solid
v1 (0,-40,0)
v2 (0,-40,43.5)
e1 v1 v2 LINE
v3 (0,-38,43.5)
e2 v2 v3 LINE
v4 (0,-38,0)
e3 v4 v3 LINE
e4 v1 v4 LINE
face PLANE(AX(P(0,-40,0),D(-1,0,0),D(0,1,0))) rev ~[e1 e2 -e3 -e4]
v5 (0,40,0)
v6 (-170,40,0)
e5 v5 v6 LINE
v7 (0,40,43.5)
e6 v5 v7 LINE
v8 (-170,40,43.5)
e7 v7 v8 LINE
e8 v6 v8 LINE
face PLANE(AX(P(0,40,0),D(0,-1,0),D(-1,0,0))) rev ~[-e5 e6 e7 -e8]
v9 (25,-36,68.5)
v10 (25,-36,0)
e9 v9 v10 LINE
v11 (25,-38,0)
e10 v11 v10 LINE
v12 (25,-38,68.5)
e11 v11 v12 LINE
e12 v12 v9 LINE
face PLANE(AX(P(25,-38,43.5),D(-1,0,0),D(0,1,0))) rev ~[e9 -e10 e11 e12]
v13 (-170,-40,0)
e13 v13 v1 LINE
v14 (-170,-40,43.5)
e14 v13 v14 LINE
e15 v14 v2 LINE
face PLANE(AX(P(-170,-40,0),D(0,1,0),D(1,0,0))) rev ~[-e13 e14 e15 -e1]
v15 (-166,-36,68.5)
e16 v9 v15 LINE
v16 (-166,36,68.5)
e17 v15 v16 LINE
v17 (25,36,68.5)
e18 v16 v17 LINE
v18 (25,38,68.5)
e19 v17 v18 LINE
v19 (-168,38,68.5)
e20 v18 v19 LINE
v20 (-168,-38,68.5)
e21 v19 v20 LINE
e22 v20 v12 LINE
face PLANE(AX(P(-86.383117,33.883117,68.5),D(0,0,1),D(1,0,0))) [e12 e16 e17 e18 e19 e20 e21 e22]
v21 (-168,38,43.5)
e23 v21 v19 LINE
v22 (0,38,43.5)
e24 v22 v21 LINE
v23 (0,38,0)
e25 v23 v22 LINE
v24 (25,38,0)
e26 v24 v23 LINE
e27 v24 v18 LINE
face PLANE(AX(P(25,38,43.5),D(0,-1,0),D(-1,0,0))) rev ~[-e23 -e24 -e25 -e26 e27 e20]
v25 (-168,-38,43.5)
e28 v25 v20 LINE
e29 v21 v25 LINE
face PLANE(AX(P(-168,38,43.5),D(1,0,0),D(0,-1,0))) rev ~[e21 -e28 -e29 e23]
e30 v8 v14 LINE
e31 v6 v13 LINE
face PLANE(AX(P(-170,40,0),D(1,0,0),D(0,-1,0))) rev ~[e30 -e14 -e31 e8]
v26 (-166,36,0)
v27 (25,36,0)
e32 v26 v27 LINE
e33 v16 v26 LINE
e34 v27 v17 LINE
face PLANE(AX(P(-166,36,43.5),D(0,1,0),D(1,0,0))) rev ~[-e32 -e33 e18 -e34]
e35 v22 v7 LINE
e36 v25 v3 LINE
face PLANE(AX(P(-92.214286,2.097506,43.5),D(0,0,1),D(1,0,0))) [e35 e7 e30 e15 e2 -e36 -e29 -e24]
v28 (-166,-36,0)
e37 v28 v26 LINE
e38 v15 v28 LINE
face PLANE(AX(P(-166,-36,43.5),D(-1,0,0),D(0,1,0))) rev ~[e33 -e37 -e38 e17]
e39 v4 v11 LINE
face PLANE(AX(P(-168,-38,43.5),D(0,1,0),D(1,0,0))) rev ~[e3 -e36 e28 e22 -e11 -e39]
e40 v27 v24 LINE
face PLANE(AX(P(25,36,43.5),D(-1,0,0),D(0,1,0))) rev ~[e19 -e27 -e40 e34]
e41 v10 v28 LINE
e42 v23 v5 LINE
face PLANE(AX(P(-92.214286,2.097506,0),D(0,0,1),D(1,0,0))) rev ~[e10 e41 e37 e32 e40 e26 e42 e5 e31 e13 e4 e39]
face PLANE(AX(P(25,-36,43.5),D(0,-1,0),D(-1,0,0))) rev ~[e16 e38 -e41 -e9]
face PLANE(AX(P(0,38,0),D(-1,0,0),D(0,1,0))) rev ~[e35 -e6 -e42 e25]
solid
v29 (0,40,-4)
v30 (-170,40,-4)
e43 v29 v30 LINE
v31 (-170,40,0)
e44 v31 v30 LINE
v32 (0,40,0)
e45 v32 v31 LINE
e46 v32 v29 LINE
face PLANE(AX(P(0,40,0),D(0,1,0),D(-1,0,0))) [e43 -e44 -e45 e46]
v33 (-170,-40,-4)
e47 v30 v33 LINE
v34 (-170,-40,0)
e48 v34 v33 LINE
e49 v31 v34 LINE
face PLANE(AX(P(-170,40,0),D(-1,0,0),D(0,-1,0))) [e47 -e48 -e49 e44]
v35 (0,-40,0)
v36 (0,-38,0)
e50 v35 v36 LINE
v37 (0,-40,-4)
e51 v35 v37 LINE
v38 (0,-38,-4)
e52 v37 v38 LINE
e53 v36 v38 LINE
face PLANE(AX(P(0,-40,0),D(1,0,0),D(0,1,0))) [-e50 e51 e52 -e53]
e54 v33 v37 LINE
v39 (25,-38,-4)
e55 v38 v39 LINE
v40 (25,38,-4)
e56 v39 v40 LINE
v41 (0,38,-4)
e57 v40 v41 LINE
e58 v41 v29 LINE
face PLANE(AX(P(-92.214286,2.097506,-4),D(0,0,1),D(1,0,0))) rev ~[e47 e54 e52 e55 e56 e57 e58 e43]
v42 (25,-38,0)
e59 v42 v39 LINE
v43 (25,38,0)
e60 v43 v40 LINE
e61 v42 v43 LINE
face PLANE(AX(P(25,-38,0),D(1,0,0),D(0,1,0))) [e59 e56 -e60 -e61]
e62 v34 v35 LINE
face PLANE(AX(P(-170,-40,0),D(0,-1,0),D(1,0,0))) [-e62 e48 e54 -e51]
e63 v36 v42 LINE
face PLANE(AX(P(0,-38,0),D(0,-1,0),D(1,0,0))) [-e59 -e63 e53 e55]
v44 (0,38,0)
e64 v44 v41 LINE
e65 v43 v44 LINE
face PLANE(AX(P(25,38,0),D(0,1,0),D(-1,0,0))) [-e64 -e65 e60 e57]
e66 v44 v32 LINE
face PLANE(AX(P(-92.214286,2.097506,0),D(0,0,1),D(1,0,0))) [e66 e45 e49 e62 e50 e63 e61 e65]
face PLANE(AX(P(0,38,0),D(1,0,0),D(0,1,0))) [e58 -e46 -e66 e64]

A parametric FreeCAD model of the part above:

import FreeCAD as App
import Part
import Sketcher


def add_polygon(sketch, points):
    """Adds a closed chain of lines whose ends are joined by coincident constraints."""
    first, n = sketch.GeometryCount, len(points)
    for a, b in zip(points, points[1:] + points[:1]):
        sketch.addGeometry(Part.LineSegment(App.Vector(*a, 0), App.Vector(*b, 0)), False)
    for i in range(n):
        sketch.addConstraint(Sketcher.Constraint("Coincident", first + i, 2, first + (i + 1) % n, 1))

doc = App.newDocument("Part")
params = doc.addObject("Spreadsheet::Sheet", "Params")
for row, (alias, value) in enumerate([
    ("sketch1_width", "191 mm"),
    ("sketch1_width2", "25 mm"),
    ("sketch1_width3", "170 mm"),
    ("sketch1_height", "2 mm"),
    ("sketch1_height2", "80 mm"),
    ("pad1_length", "43.5 mm"),
    ("sketch2_width", "191 mm"),
    ("sketch2_width2", "193 mm"),
    ("sketch2_height", "2 mm"),
    ("sketch2_height2", "76 mm"),
    ("pad2_length", "25 mm"),
    ("sketch3_width", "25 mm"),
    ("sketch3_width2", "170 mm"),
    ("sketch3_height", "2 mm"),
    ("sketch3_height2", "80 mm"),
    ("pad3_length", "4 mm"),
], start=1):
    params.set(f"A{row}", alias)
    params.set(f"B{row}", "=" + value)
    params.setAlias(f"B{row}", alias)

body = doc.addObject("PartDesign::Body", "Body")

# Sketch on XY plane
sketch1 = body.newObject("Sketcher::SketchObject", "Sketch")
sketch1.AttachmentSupport = (doc.getObject("XY_Plane"), [""])
sketch1.MapMode = "FlatFace"
add_polygon(sketch1, [(-166, 36), (25, 36), (25, 38), (0, 38), (0, 40), (-170, 40), (-170, -40), (0, -40), (0, -38), (25, -38), (25, -36), (-166, -36)])  # lines 0-11
sketch1.addConstraint(Sketcher.Constraint("Horizontal", 0))
sketch1.addConstraint(Sketcher.Constraint("Vertical", 1))
sketch1.addConstraint(Sketcher.Constraint("Horizontal", 2))
sketch1.addConstraint(Sketcher.Constraint("Vertical", 3))
sketch1.addConstraint(Sketcher.Constraint("Horizontal", 4))
sketch1.addConstraint(Sketcher.Constraint("Vertical", 5))
sketch1.addConstraint(Sketcher.Constraint("Horizontal", 6))
sketch1.addConstraint(Sketcher.Constraint("Vertical", 7))
sketch1.addConstraint(Sketcher.Constraint("Horizontal", 8))
sketch1.addConstraint(Sketcher.Constraint("Vertical", 9))
sketch1.addConstraint(Sketcher.Constraint("Horizontal", 10))
sketch1.addConstraint(Sketcher.Constraint("Vertical", 11))
sketch1.addConstraint(Sketcher.Constraint("Symmetric", 3, 2, 6, 2, -1, 1))
sketch1.addConstraint(Sketcher.Constraint("Symmetric", 2, 2, 7, 2, -1))
sketch1.addConstraint(Sketcher.Constraint("Symmetric", 0, 2, 9, 2, -1))
sketch1.addConstraint(Sketcher.Constraint("Equal", 1, 3))
sketch1.addConstraint(Sketcher.Constraint("DistanceX", 0, 1, 0, 2, 191.0))
sketch1.addConstraint(Sketcher.Constraint("DistanceX", 2, 2, 2, 1, 25.0))
sketch1.addConstraint(Sketcher.Constraint("DistanceX", 4, 2, 4, 1, 170.0))
sketch1.addConstraint(Sketcher.Constraint("DistanceY", 1, 1, 1, 2, 2.0))
sketch1.addConstraint(Sketcher.Constraint("DistanceY", 5, 2, 5, 1, 80.0))
sketch1.setExpression("Constraints[28]", "Params.sketch1_width")
sketch1.setExpression("Constraints[29]", "Params.sketch1_width2")
sketch1.setExpression("Constraints[30]", "Params.sketch1_width3")
sketch1.setExpression("Constraints[31]", "Params.sketch1_height")
sketch1.setExpression("Constraints[32]", "Params.sketch1_height2")
pad1 = body.newObject("PartDesign::Pad", "Pad")
pad1.Profile = sketch1
pad1.setExpression("Length", "Params.pad1_length")

# Sketch on XY plane
sketch2 = body.newObject("Sketcher::SketchObject", "Sketch001")
sketch2.AttachmentSupport = (doc.getObject("XY_Plane"), [""])
sketch2.MapMode = "FlatFace"
sketch2.AttachmentOffset = App.Placement(App.Vector(0, 0, 43.5), App.Rotation())
add_polygon(sketch2, [(-166, 36), (25, 36), (25, 38), (-168, 38), (-168, -38), (25, -38), (25, -36), (-166, -36)])  # lines 0-7
sketch2.addConstraint(Sketcher.Constraint("Horizontal", 0))
sketch2.addConstraint(Sketcher.Constraint("Vertical", 1))
sketch2.addConstraint(Sketcher.Constraint("Horizontal", 2))
sketch2.addConstraint(Sketcher.Constraint("Vertical", 3))
sketch2.addConstraint(Sketcher.Constraint("Horizontal", 4))
sketch2.addConstraint(Sketcher.Constraint("Vertical", 5))
sketch2.addConstraint(Sketcher.Constraint("Horizontal", 6))
sketch2.addConstraint(Sketcher.Constraint("Vertical", 7))
sketch2.addConstraint(Sketcher.Constraint("Symmetric", 1, 2, 4, 2, -1))
sketch2.addConstraint(Sketcher.Constraint("Equal", 1, 5))
sketch2.addConstraint(Sketcher.Constraint("DistanceX", 0, 1, 0, 2, 191.0))
sketch2.addConstraint(Sketcher.Constraint("DistanceX", 2, 2, 2, 1, 193.0))
sketch2.addConstraint(Sketcher.Constraint("DistanceY", 1, 1, 1, 2, 2.0))
sketch2.addConstraint(Sketcher.Constraint("DistanceY", 3, 2, 3, 1, 76.0))
sketch2.addConstraint(Sketcher.Constraint("DistanceX", -1, 1, 0, 2, 25.0))
sketch2.setExpression("Constraints[18]", "Params.sketch2_width")
sketch2.setExpression("Constraints[19]", "Params.sketch2_width2")
sketch2.setExpression("Constraints[20]", "Params.sketch2_height")
sketch2.setExpression("Constraints[21]", "Params.sketch2_height2")
pad2 = body.newObject("PartDesign::Pad", "Pad001")
pad2.Profile = sketch2
pad2.setExpression("Length", "Params.pad2_length")
body2 = doc.addObject("PartDesign::Body", "Body001")

# Sketch on XY plane
sketch3 = body2.newObject("Sketcher::SketchObject", "Sketch002")
sketch3.AttachmentSupport = (doc.getObject("XY_Plane001"), [""])
sketch3.MapMode = "FlatFace"
add_polygon(sketch3, [(25, 38), (0, 38), (0, 40), (-170, 40), (-170, -40), (0, -40), (0, -38), (25, -38)])  # lines 0-7
sketch3.addConstraint(Sketcher.Constraint("Horizontal", 0))
sketch3.addConstraint(Sketcher.Constraint("Vertical", 1))
sketch3.addConstraint(Sketcher.Constraint("Horizontal", 2))
sketch3.addConstraint(Sketcher.Constraint("Vertical", 3))
sketch3.addConstraint(Sketcher.Constraint("Horizontal", 4))
sketch3.addConstraint(Sketcher.Constraint("Vertical", 5))
sketch3.addConstraint(Sketcher.Constraint("Horizontal", 6))
sketch3.addConstraint(Sketcher.Constraint("Vertical", 7))
sketch3.addConstraint(Sketcher.Constraint("Symmetric", 1, 2, 4, 2, -1, 1))
sketch3.addConstraint(Sketcher.Constraint("Symmetric", 0, 2, 5, 2, -1))
sketch3.addConstraint(Sketcher.Constraint("DistanceX", 0, 2, 0, 1, 25.0))
sketch3.addConstraint(Sketcher.Constraint("DistanceX", 2, 2, 2, 1, 170.0))
sketch3.addConstraint(Sketcher.Constraint("DistanceY", 1, 1, 1, 2, 2.0))
sketch3.addConstraint(Sketcher.Constraint("DistanceY", 3, 2, 3, 1, 80.0))
sketch3.setExpression("Constraints[18]", "Params.sketch3_width")
sketch3.setExpression("Constraints[19]", "Params.sketch3_width2")
sketch3.setExpression("Constraints[20]", "Params.sketch3_height")
sketch3.setExpression("Constraints[21]", "Params.sketch3_height2")
pad3 = body2.newObject("PartDesign::Pad", "Pad002")
pad3.Profile = sketch3
pad3.setExpression("Length", "Params.pad3_length")
pad3.Reversed = True

doc.recompute()
